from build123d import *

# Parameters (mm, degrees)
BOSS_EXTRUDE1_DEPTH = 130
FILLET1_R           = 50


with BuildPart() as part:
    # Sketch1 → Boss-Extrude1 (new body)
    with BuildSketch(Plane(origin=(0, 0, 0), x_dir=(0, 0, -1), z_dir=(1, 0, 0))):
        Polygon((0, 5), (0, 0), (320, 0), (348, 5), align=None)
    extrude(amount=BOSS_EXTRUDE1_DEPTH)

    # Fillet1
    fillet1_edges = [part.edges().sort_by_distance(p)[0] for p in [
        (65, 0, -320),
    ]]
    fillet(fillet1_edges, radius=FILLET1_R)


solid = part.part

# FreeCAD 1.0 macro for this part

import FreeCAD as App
import Part
import Sketcher
from FreeCAD import Vector
Q = App.Units.Quantity


def edges_at(feature, points):
    """Names of the edges that pass closest to the given points."""
    edges = feature.Shape.Edges
    near = lambda p: min(range(len(edges)), key=lambda i: edges[i].distToShape(Part.Vertex(*p))[0])
    return sorted({f"Edge{near(p) + 1}" for p in points})

doc = App.newDocument("Part")
body = doc.addObject("PartDesign::Body", "Body")

sketch1 = body.newObject("Sketcher::SketchObject", "Sketch")
sketch1.AttachmentSupport = (doc.getObject("YZ_Plane"), [""])
sketch1.MapMode = "FlatFace"
sketch1.addGeometry(Part.LineSegment(Vector(5, 0, 0), Vector(0, 0, 0)), False)
sketch1.addGeometry(Part.LineSegment(Vector(0, 0, 0), Vector(0, -320, 0)), False)
sketch1.addGeometry(Part.LineSegment(Vector(0, -320, 0), Vector(5, -348, 0)), False)
sketch1.addGeometry(Part.LineSegment(Vector(5, -348, 0), Vector(5, 0, 0)), False)
sketch1.addConstraint(Sketcher.Constraint("Coincident", 0, 2, 1, 1))
sketch1.addConstraint(Sketcher.Constraint("Coincident", 1, 2, 2, 1))
sketch1.addConstraint(Sketcher.Constraint("Coincident", 2, 2, 3, 1))
sketch1.addConstraint(Sketcher.Constraint("Coincident", 3, 2, 0, 1))
sketch1.addConstraint(Sketcher.Constraint("Horizontal", 0))
sketch1.addConstraint(Sketcher.Constraint("Vertical", 1))
sketch1.addConstraint(Sketcher.Constraint("Vertical", 3))
sketch1.addConstraint(Sketcher.Constraint("Coincident", 0, 2, -1, 1))
sketch1.addConstraint(Sketcher.Constraint("DistanceX", 0, 2, 0, 1, Q("5 mm")))
sketch1.addConstraint(Sketcher.Constraint("DistanceY", 1, 2, 1, 1, Q("320 mm")))
sketch1.addConstraint(Sketcher.Constraint("DistanceY", 3, 1, 3, 2, Q("348 mm")))
pad1 = body.newObject("PartDesign::Pad", "Pad")
pad1.Profile = sketch1
pad1.Length = 130
doc.recompute()

fillet = body.newObject("PartDesign::Fillet", "Fillet")
fillet.Base = (pad1, edges_at(pad1, [(65, 0, -320)]))
fillet.Radius = 50

doc.recompute()
